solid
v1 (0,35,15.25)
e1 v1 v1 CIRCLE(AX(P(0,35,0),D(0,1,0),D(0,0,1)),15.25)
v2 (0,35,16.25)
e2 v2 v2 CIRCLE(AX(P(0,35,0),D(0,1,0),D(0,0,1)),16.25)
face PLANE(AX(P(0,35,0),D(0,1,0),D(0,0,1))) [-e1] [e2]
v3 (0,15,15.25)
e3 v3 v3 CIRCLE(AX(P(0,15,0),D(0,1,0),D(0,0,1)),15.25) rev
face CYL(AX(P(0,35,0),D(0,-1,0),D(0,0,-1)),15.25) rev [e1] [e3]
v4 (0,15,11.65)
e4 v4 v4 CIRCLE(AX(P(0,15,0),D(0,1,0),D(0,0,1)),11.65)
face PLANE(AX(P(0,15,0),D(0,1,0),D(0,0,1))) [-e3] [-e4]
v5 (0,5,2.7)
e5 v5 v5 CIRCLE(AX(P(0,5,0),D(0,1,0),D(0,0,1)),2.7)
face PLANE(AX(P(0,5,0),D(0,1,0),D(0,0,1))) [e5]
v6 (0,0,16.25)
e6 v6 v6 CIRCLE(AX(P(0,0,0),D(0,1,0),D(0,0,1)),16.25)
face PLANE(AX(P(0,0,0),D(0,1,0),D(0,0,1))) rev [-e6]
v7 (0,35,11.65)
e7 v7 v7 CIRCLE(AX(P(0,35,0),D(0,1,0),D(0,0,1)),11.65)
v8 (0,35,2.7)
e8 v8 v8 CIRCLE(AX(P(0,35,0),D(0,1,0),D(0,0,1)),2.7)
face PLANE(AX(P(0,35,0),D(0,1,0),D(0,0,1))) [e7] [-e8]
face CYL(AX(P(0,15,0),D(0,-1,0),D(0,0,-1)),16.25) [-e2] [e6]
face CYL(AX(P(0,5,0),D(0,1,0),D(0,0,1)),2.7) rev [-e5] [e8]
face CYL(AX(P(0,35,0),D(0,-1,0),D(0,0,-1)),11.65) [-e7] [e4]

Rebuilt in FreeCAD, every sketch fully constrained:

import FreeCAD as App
import Part
import Sketcher
from FreeCAD import Vector

doc = App.newDocument("Part")
body = doc.addObject("PartDesign::Body", "Body")

sketch1 = body.newObject("Sketcher::SketchObject", "Sketch")
sketch1.AttachmentSupport = (doc.getObject("XZ_Plane"), [""])
sketch1.MapMode = "FlatFace"
sketch1.addGeometry(Part.Circle(Vector(0, 0, 0), Vector(0, 0, 1), 16.25), False)
sketch1.addConstraint(Sketcher.Constraint("Coincident", 0, 3, -1, 1))
sketch1.addConstraint(Sketcher.Constraint("Diameter", 0, 32.5))
pad1 = body.newObject("PartDesign::Pad", "Pad")
pad1.Profile = sketch1
pad1.Length = 15
pad1.Reversed = True

sketch2 = body.newObject("Sketcher::SketchObject", "Sketch001")
sketch2.AttachmentSupport = (doc.getObject("XZ_Plane"), [""])
sketch2.MapMode = "FlatFace"
sketch2.AttachmentOffset = App.Placement(Vector(0, 0, -15), App.Rotation())
sketch2.addGeometry(Part.Circle(Vector(0, 0, 0), Vector(0, 0, 1), 11.65), False)
sketch2.addConstraint(Sketcher.Constraint("Coincident", 0, 3, -1, 1))
sketch2.addConstraint(Sketcher.Constraint("Diameter", 0, 23.3))
pad2 = body.newObject("PartDesign::Pad", "Pad001")
pad2.Profile = sketch2
pad2.Length = 20
pad2.Reversed = True

sketch3 = body.newObject("Sketcher::SketchObject", "Sketch002")
sketch3.AttachmentSupport = (doc.getObject("XZ_Plane"), [""])
sketch3.MapMode = "FlatFace"
sketch3.AttachmentOffset = App.Placement(Vector(0, 0, -15), App.Rotation())
sketch3.addGeometry(Part.Circle(Vector(0, 0, 0), Vector(0, 0, 1), 16.25), False)
sketch3.addGeometry(Part.Circle(Vector(0, 0, 0), Vector(0, 0, 1), 15.25), False)
sketch3.addConstraint(Sketcher.Constraint("Coincident", 0, 3, -1, 1))
sketch3.addConstraint(Sketcher.Constraint("Coincident", 1, 3, -1, 1))
sketch3.addConstraint(Sketcher.Constraint("Diameter", 0, 32.5))
sketch3.addConstraint(Sketcher.Constraint("Diameter", 1, 30.5))
pad3 = body.newObject("PartDesign::Pad", "Pad002")
pad3.Profile = sketch3
pad3.Length = 20
pad3.Reversed = True

sketch4 = body.newObject("Sketcher::SketchObject", "Sketch003")
sketch4.AttachmentSupport = (doc.getObject("XZ_Plane"), [""])
sketch4.MapMode = "FlatFace"
sketch4.AttachmentOffset = App.Placement(Vector(0, 0, -35), App.Rotation())
sketch4.addGeometry(Part.Circle(Vector(0, 0, 0), Vector(0, 0, 1), 2.7), False)
sketch4.addConstraint(Sketcher.Constraint("Coincident", 0, 3, -1, 1))
sketch4.addConstraint(Sketcher.Constraint("Diameter", 0, 5.4))
pocket1 = body.newObject("PartDesign::Pocket", "Pocket")
pocket1.Profile = sketch4
pocket1.Length = 30
pocket1.Reversed = True

doc.recompute()
